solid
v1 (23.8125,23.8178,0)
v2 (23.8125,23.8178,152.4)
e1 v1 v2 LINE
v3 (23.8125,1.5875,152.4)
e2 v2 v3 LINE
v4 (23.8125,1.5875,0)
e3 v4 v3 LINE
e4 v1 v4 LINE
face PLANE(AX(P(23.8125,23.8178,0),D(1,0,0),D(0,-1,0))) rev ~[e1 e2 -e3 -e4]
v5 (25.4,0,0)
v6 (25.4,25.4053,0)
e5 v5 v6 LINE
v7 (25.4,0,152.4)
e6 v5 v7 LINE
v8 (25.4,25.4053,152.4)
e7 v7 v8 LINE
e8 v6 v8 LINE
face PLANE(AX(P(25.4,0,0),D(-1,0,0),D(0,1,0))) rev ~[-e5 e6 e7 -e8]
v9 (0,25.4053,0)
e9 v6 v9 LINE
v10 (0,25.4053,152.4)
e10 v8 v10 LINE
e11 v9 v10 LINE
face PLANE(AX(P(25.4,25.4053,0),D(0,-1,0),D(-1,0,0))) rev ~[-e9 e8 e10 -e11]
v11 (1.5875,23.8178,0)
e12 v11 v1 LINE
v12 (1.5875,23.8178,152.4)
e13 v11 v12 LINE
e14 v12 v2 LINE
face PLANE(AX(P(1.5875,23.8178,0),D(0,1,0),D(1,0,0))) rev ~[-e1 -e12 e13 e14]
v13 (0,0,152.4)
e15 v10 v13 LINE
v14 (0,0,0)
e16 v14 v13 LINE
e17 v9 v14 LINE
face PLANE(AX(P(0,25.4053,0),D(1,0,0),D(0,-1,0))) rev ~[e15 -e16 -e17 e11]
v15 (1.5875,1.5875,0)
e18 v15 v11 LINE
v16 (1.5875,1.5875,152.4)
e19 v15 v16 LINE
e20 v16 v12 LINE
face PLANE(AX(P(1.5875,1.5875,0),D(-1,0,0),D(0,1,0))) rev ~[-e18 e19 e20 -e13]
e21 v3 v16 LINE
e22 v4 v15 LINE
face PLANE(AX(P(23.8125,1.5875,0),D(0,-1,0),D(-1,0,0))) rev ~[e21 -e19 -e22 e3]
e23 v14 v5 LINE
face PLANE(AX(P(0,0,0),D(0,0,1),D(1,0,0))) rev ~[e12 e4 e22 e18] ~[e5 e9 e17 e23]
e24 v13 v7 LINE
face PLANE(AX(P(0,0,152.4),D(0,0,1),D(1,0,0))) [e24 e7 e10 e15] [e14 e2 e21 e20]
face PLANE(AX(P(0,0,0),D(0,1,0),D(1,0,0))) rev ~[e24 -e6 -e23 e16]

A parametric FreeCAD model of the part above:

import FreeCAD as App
import Part
import Sketcher

V = App.Vector
Q = App.Units.Quantity

doc = App.newDocument("Part")
body = doc.addObject("PartDesign::Body", "Body")

sketch1 = body.newObject("Sketcher::SketchObject", "Sketch")
sketch1.AttachmentSupport = (doc.getObject("XY_Plane"), [""])
sketch1.MapMode = "FlatFace"
sketch1.addGeometry([
    Part.LineSegment(V(0, 25, 0), V(0, 0, 0)),
    Part.LineSegment(V(0, 0, 0), V(25, 0, 0)),
    Part.LineSegment(V(25, 0, 0), V(25, 25, 0)),
    Part.LineSegment(V(25, 25, 0), V(0, 25, 0)),
    Part.LineSegment(V(2, 2, 0), V(2, 24, 0)),
    Part.LineSegment(V(2, 24, 0), V(24, 24, 0)),
    Part.LineSegment(V(24, 24, 0), V(24, 2, 0)),
    Part.LineSegment(V(24, 2, 0), V(2, 2, 0)),
], False)
sketch1.addConstraint([
    Sketcher.Constraint("Coincident", 0, 2, 1, 1),
    Sketcher.Constraint("Coincident", 1, 2, 2, 1),
    Sketcher.Constraint("Coincident", 2, 2, 3, 1),
    Sketcher.Constraint("Coincident", 3, 2, 0, 1),
    Sketcher.Constraint("Coincident", 4, 2, 5, 1),
    Sketcher.Constraint("Coincident", 5, 2, 6, 1),
    Sketcher.Constraint("Coincident", 6, 2, 7, 1),
    Sketcher.Constraint("Coincident", 7, 2, 4, 1),
    Sketcher.Constraint("Vertical", 0),
    Sketcher.Constraint("Horizontal", 1),
    Sketcher.Constraint("Vertical", 2),
    Sketcher.Constraint("Horizontal", 3),
    Sketcher.Constraint("Vertical", 4),
    Sketcher.Constraint("Horizontal", 5),
    Sketcher.Constraint("Vertical", 6),
    Sketcher.Constraint("Horizontal", 7),
    Sketcher.Constraint("Coincident", 0, 2, -1, 1),
    Sketcher.Constraint("DistanceX", 1, 1, 1, 2, Q("1 in")),
    Sketcher.Constraint("DistanceX", 5, 1, 5, 2, Q("0.875 in")),
    Sketcher.Constraint("DistanceY", 0, 2, 0, 1, Q("1.0002 in")),
    Sketcher.Constraint("DistanceY", 4, 1, 4, 2, Q("0.8752 in")),
    Sketcher.Constraint("DistanceX", -1, 1, 4, 2, Q("0.0625 in")),
    Sketcher.Constraint("DistanceY", -1, 1, 6, 2, Q("0.0625 in")),
])
pad1 = body.newObject("PartDesign::Pad", "Pad")
pad1.Profile = sketch1
pad1.Length = Q("6 in")

doc.recompute()
